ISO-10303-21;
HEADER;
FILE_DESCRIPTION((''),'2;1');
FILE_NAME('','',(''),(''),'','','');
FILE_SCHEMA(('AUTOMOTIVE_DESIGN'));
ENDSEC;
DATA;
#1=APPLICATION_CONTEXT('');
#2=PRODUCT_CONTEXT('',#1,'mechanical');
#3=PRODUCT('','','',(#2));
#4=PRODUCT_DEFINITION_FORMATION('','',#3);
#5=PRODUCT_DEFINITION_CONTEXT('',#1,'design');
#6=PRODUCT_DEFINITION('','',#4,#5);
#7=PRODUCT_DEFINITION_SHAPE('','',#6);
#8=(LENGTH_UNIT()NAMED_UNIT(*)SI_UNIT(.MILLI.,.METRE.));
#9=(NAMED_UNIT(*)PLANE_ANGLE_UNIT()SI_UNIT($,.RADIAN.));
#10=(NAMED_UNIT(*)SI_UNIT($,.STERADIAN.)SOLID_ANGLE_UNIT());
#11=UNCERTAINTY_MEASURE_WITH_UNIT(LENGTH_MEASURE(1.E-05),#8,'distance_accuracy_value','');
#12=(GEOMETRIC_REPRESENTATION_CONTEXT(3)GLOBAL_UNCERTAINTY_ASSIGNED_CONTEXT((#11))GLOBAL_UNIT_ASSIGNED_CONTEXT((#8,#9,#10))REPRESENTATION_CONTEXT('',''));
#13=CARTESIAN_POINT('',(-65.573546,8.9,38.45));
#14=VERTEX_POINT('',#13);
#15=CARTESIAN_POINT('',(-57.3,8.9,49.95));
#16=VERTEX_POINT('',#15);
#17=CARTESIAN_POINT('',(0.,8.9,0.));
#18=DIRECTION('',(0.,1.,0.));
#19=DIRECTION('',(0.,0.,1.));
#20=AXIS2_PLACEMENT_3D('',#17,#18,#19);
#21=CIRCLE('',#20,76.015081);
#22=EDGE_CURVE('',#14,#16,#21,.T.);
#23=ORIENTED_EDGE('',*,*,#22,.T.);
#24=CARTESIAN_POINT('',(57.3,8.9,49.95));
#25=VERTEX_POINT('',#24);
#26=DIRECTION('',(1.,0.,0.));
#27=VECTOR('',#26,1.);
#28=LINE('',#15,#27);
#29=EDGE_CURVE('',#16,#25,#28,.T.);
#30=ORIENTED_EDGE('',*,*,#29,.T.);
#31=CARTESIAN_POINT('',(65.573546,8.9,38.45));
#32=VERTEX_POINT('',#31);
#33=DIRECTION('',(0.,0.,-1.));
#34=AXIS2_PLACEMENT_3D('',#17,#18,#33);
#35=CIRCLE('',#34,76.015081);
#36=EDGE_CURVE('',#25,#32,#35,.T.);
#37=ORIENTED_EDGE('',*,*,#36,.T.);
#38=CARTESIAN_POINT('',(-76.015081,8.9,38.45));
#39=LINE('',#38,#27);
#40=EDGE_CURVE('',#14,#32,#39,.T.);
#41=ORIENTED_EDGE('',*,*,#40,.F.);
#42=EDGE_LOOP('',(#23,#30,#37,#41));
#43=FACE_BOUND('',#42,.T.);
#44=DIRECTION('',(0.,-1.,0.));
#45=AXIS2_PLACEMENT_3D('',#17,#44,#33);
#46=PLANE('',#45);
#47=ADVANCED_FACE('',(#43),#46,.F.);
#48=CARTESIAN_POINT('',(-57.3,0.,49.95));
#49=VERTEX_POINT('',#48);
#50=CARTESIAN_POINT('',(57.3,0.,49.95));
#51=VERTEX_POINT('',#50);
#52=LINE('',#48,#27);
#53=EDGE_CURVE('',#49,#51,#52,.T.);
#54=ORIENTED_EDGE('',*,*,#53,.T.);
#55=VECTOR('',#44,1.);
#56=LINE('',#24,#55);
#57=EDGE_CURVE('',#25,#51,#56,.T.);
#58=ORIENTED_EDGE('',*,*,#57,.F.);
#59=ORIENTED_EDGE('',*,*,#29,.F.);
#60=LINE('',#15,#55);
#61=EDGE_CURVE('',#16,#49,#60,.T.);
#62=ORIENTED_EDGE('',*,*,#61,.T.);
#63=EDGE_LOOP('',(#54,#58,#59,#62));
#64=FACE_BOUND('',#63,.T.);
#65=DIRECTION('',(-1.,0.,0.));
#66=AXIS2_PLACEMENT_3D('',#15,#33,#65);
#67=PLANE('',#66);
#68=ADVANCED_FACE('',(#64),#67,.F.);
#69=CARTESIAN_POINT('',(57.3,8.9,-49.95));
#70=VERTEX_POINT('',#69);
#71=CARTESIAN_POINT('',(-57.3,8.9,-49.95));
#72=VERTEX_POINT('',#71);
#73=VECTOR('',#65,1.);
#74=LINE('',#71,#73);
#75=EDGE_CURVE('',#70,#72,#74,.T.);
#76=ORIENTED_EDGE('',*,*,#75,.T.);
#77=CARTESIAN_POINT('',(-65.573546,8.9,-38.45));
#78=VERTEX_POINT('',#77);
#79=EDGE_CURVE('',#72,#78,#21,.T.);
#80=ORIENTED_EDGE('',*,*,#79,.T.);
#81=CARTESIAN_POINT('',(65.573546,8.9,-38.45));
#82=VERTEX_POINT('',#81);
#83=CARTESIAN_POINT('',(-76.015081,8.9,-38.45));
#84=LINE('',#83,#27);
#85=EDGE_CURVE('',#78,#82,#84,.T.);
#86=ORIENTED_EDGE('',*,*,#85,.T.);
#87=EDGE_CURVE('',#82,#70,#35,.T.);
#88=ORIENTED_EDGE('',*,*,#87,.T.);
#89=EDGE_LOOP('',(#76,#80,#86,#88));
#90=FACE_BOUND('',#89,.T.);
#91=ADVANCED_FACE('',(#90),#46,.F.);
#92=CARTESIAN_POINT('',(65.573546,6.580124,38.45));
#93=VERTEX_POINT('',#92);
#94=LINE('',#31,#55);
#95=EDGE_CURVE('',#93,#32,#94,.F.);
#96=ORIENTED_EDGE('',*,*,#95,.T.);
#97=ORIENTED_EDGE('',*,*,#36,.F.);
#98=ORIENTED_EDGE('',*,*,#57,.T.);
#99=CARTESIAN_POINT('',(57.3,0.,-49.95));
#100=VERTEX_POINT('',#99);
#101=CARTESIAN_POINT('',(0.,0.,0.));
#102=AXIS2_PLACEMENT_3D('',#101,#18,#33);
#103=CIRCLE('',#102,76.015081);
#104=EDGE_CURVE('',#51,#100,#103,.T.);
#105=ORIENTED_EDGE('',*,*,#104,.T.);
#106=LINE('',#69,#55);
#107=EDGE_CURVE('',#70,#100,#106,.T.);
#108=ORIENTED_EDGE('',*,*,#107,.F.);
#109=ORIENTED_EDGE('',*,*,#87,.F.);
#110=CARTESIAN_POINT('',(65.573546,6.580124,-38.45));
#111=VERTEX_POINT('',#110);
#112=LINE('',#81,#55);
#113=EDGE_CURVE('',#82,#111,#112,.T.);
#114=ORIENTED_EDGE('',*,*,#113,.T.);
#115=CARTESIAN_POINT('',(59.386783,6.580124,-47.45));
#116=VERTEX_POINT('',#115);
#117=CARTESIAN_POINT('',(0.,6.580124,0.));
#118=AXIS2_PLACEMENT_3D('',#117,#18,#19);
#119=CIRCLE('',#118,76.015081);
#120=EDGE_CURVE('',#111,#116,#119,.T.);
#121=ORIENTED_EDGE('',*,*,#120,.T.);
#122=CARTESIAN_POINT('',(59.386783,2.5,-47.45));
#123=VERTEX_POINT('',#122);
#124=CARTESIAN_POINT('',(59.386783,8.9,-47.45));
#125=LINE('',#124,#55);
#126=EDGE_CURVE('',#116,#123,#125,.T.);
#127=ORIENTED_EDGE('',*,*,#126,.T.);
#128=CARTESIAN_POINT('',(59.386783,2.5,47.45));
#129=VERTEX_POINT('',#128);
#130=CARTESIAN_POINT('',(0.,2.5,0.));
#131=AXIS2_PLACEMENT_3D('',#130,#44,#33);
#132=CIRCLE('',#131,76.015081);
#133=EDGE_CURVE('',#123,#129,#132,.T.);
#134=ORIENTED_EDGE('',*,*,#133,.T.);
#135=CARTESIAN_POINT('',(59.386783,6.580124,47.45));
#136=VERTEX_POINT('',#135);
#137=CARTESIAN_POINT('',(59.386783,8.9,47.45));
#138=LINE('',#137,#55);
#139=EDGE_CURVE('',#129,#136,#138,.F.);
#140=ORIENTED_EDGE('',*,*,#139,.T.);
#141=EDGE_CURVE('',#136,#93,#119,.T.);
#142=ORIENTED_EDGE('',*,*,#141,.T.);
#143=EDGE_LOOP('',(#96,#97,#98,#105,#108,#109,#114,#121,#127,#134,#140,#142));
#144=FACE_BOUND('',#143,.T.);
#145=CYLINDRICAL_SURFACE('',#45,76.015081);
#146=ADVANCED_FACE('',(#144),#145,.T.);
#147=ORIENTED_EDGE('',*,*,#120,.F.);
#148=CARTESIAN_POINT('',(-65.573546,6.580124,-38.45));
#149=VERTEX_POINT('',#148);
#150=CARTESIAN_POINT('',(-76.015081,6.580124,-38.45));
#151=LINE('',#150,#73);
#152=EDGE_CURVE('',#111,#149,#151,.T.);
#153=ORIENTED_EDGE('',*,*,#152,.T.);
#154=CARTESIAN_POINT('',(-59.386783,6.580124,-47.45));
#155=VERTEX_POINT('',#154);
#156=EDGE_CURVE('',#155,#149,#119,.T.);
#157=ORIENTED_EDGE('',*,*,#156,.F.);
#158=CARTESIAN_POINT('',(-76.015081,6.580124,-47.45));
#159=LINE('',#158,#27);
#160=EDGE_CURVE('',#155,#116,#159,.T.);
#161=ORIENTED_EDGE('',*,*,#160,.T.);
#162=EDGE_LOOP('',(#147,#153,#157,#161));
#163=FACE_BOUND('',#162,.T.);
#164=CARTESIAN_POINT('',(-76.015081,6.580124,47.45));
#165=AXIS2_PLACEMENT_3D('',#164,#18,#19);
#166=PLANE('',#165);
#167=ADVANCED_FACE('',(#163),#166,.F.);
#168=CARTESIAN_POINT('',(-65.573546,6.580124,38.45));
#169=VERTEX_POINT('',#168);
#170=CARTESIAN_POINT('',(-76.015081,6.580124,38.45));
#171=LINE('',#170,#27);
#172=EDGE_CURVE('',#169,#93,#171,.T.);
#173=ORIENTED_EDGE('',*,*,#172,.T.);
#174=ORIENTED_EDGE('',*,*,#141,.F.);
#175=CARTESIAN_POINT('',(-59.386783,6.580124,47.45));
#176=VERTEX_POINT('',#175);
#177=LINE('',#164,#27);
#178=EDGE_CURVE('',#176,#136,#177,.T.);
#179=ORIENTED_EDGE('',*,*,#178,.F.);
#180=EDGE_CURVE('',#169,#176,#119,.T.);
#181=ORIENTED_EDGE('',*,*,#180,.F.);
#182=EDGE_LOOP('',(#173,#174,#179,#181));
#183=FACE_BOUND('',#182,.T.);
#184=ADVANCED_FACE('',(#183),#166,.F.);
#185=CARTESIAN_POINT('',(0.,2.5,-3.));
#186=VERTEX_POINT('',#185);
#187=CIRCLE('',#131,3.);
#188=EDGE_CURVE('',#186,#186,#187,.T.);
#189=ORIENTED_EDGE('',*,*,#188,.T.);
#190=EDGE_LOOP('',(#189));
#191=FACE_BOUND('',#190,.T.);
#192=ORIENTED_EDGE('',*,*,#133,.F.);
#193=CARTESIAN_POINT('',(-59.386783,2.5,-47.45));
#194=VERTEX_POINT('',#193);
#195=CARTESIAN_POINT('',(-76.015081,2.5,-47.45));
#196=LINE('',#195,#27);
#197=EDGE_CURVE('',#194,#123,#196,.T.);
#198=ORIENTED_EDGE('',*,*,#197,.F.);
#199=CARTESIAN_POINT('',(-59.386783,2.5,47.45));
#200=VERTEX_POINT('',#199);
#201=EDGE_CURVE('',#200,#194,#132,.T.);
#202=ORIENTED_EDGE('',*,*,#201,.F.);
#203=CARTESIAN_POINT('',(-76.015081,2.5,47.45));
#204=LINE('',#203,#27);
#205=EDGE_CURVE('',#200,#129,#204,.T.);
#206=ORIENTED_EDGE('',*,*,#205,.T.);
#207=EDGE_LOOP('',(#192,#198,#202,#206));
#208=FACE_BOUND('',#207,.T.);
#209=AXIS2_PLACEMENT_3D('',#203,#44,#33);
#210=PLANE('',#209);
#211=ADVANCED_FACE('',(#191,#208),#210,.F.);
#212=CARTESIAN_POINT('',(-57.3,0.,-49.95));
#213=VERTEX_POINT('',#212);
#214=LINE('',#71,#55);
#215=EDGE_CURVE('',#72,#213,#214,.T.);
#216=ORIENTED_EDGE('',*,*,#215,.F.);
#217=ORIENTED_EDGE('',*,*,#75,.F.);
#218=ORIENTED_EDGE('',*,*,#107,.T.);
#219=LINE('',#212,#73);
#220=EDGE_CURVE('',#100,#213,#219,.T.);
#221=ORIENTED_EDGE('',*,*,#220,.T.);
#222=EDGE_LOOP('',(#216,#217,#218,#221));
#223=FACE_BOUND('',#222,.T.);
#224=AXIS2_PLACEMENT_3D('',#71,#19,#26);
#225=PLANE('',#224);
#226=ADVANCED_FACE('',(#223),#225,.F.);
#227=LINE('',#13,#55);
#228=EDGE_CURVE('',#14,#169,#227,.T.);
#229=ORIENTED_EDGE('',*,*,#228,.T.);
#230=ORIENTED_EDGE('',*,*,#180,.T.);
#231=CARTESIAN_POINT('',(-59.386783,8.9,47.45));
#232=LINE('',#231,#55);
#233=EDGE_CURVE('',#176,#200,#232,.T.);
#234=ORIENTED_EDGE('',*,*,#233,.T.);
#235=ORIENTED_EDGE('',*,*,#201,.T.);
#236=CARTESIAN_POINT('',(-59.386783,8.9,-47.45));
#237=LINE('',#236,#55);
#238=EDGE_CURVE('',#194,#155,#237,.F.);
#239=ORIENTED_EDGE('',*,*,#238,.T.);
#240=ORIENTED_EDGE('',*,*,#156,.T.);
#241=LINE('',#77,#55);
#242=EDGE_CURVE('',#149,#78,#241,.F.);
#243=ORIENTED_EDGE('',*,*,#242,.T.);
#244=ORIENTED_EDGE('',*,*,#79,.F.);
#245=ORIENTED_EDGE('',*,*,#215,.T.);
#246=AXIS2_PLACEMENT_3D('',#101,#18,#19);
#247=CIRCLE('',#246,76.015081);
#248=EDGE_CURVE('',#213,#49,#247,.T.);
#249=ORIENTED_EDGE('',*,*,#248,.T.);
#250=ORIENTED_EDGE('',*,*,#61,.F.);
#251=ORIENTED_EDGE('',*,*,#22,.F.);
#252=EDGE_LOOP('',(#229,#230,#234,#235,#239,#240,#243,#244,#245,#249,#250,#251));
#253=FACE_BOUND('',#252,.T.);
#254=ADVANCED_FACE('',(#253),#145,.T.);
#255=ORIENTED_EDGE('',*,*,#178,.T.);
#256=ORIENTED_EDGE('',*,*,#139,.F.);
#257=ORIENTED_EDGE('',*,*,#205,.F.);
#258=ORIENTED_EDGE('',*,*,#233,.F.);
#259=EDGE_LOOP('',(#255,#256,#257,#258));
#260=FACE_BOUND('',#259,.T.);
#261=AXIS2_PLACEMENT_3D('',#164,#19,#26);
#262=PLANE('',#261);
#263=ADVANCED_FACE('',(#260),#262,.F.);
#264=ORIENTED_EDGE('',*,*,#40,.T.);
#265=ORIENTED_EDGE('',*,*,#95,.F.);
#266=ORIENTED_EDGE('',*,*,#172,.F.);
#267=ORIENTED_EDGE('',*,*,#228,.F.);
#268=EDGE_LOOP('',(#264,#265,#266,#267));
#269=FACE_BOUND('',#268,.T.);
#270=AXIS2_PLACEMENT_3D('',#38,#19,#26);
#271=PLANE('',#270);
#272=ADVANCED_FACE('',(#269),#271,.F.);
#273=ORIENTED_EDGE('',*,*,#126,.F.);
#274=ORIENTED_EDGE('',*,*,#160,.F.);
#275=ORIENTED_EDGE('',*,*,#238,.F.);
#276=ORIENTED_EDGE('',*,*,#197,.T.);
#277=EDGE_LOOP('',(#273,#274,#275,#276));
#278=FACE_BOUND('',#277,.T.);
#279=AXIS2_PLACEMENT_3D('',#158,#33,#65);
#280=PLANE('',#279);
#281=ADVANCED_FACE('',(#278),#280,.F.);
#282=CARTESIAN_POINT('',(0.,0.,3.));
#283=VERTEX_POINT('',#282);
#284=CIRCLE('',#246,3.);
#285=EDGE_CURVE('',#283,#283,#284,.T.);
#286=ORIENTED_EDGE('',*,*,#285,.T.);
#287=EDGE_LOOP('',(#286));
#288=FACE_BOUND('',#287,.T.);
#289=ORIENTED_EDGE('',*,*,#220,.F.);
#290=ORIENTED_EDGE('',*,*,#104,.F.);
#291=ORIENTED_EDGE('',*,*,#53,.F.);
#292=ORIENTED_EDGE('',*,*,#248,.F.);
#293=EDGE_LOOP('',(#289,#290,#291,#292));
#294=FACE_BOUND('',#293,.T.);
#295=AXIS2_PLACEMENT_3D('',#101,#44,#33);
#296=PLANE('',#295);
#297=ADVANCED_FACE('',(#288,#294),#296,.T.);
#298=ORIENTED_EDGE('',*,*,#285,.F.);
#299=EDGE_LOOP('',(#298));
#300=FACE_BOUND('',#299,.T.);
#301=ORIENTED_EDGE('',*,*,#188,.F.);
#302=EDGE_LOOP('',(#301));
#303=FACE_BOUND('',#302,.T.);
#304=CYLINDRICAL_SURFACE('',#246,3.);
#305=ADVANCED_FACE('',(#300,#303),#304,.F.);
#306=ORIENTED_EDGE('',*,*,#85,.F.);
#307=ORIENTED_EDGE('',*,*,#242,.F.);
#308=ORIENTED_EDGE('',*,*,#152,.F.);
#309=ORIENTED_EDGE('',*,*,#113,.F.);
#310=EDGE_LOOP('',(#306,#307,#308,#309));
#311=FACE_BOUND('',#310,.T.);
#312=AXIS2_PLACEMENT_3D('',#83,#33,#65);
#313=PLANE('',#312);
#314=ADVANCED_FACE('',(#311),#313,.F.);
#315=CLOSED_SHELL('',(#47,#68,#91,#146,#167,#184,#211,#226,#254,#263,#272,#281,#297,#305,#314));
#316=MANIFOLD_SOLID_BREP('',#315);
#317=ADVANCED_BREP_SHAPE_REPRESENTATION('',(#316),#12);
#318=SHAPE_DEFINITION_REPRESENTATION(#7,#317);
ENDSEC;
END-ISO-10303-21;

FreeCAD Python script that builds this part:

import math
import FreeCAD as App
import Part
import Sketcher

V = App.Vector
Q = App.Units.Quantity


def add_polygon(sketch, points):
    """Adds a closed chain of lines whose ends are joined by coincident constraints."""
    first, n = sketch.GeometryCount, len(points)
    for a, b in zip(points, points[1:] + points[:1]):
        sketch.addGeometry(Part.LineSegment(App.Vector(*a, 0), App.Vector(*b, 0)), False)
    for i in range(n):
        sketch.addConstraint(Sketcher.Constraint("Coincident", first + i, 2, first + (i + 1) % n, 1))

doc = App.newDocument("Part")
body = doc.addObject("PartDesign::Body", "Body")

# Sketch on XZ plane
sketch1 = doc.addObject("Sketcher::SketchObject", "Sketch")
body.addObject(sketch1)
sketch1.AttachmentSupport = (doc.XZ_Plane, [""])
sketch1.MapMode = "FlatFace"
sketch1.addGeometry([
    Part.LineSegment(V(57, -50, 0), V(-57, -50, 0)),
    Part.ArcOfCircle(Part.Circle(V(0, 0, 0), V(0, 0, 1), 76), math.radians(139), math.radians(221)),
    Part.LineSegment(V(-57, 50, 0), V(57, 50, 0)),
    Part.ArcOfCircle(Part.Circle(V(0, 0, 0), V(0, 0, 1), 76), math.radians(-41), math.radians(41)),
], False)
sketch1.addConstraint([
    Sketcher.Constraint("Coincident", 0, 2, 1, 2),
    Sketcher.Constraint("Coincident", 1, 1, 2, 1),
    Sketcher.Constraint("Coincident", 2, 2, 3, 2),
    Sketcher.Constraint("Coincident", 3, 1, 0, 1),
    Sketcher.Constraint("Horizontal", 0),
    Sketcher.Constraint("Horizontal", 2),
    Sketcher.Constraint("Coincident", 1, 3, -1, 1),
    Sketcher.Constraint("Coincident", 3, 3, -1, 1),
    Sketcher.Constraint("Equal", 1, 3),
    Sketcher.Constraint("Vertical", 0, 2, 1, 1),
    Sketcher.Constraint("DistanceX", 0, 2, 0, 1, Q("114.6 mm")),
    Sketcher.Constraint("DistanceY", 0, 2, 1, 1, Q("99.9 mm")),
])
pad1 = doc.addObject("PartDesign::Pad", "Pad")
body.addObject(pad1)
pad1.Profile = sketch1
pad1.Length = 8.9
pad1.Reversed = True

# Sketch on YZ plane
sketch2 = doc.addObject("Sketcher::SketchObject", "Sketch001")
body.addObject(sketch2)
sketch2.AttachmentSupport = (doc.YZ_Plane, [""])
sketch2.MapMode = "FlatFace"
add_polygon(sketch2, [(6.6, 47.5), (2.5, 47.5), (2.5, -47.5), (6.6, -47.5)])  # lines 0-3
sketch2.addConstraint([
    Sketcher.Constraint("Horizontal", 0),
    Sketcher.Constraint("Vertical", 1),
    Sketcher.Constraint("Horizontal", 2),
    Sketcher.Constraint("Vertical", 3),
    Sketcher.Constraint("DistanceY", 1, 2, 1, 1, Q("94.9 mm")),
    Sketcher.Constraint("DistanceX", -1, 1, 0, 2, Q("2.5 mm")),
    Sketcher.Constraint("DistanceY", -1, 1, 0, 2, Q("47.45 mm")),
    Sketcher.Constraint("DistanceX", 0, 2, 0, 1, Q("4.080124 mm")),
])
pocket1 = doc.addObject("PartDesign::Pocket", "Pocket")
body.addObject(pocket1)
pocket1.Profile = sketch2
pocket1.Type = "ThroughAll"
pocket1.Midplane = True

# Sketch on YZ plane
sketch3 = doc.addObject("Sketcher::SketchObject", "Sketch002")
body.addObject(sketch3)
sketch3.AttachmentSupport = (doc.YZ_Plane, [""])
sketch3.MapMode = "FlatFace"
add_polygon(sketch3, [(8.9, 38.5), (6.6, 38.5), (6.6, -38.5), (8.9, -38.5)])  # lines 0-3
sketch3.addConstraint([
    Sketcher.Constraint("Horizontal", 0),
    Sketcher.Constraint("Vertical", 1),
    Sketcher.Constraint("Horizontal", 2),
    Sketcher.Constraint("Vertical", 3),
    Sketcher.Constraint("DistanceY", 1, 2, 1, 1, Q("76.9 mm")),
    Sketcher.Constraint("DistanceX", -1, 1, 2, 2, Q("8.9 mm")),
    Sketcher.Constraint("DistanceY", -1, 1, 0, 2, Q("38.45 mm")),
    Sketcher.Constraint("DistanceX", 0, 2, 0, 1, Q("2.319876 mm")),
])
pocket2 = doc.addObject("PartDesign::Pocket", "Pocket001")
body.addObject(pocket2)
pocket2.Profile = sketch3
pocket2.Type = "ThroughAll"
pocket2.Midplane = True

# Sketch on XZ plane
sketch4 = doc.addObject("Sketcher::SketchObject", "Sketch003")
body.addObject(sketch4)
sketch4.AttachmentSupport = (doc.XZ_Plane, [""])
sketch4.MapMode = "FlatFace"
sketch4.AttachmentOffset = App.Placement(V(0, 0, -2.5), App.Rotation())
sketch4.addGeometry(Part.Circle(V(0, 0, 0), V(0, 0, 1), 3), False)
sketch4.addConstraint([
    Sketcher.Constraint("Coincident", 0, 3, -1, 1),
    Sketcher.Constraint("Diameter", 0, Q("6 mm")),
])
pocket3 = doc.addObject("PartDesign::Pocket", "Pocket002")
body.addObject(pocket3)
pocket3.Profile = sketch4
pocket3.Type = "ThroughAll"
pocket3.Midplane = True

doc.recompute()
